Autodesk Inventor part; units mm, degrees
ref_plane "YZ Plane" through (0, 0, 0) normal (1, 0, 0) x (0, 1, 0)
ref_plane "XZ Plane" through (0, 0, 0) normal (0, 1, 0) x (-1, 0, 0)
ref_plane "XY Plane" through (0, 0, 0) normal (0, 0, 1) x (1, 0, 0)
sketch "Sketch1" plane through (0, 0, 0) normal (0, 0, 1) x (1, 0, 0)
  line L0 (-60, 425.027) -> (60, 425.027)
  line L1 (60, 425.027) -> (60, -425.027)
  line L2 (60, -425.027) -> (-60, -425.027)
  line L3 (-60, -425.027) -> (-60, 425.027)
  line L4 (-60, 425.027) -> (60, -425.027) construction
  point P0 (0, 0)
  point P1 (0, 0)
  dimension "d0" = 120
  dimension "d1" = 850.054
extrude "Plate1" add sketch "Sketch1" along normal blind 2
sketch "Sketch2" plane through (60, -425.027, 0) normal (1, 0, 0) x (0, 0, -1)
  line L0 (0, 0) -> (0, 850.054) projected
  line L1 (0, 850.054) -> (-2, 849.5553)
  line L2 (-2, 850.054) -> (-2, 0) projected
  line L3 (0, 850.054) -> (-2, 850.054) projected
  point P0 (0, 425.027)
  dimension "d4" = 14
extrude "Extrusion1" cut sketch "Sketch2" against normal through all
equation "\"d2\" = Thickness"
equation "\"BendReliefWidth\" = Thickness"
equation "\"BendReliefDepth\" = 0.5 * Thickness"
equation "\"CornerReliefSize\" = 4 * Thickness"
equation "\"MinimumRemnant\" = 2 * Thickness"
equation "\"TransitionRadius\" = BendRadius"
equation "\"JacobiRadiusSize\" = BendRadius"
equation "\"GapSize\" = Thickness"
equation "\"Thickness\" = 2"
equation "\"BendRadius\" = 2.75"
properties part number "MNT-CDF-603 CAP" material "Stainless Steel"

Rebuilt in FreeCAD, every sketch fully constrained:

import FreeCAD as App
import Part
import Sketcher

V = App.Vector
Q = App.Units.Quantity


def add_polygon(sketch, points):
    """Adds a closed chain of lines whose ends are joined by coincident constraints."""
    first, n = sketch.GeometryCount, len(points)
    for a, b in zip(points, points[1:] + points[:1]):
        sketch.addGeometry(Part.LineSegment(App.Vector(*a, 0), App.Vector(*b, 0)), False)
    for i in range(n):
        sketch.addConstraint(Sketcher.Constraint("Coincident", first + i, 2, first + (i + 1) % n, 1))

doc = App.newDocument("Part")
params = doc.addObject("Spreadsheet::Sheet", "Params")
for row, (alias, value) in enumerate([
    ("sketch1_width", "120 mm"),
    ("pad1_length", "2 mm"),
    ("sketch2_height", "2 mm"),
], start=1):
    params.set(f"A{row}", alias)
    params.set(f"B{row}", "=" + value)
    params.setAlias(f"B{row}", alias)

body = doc.addObject("PartDesign::Body", "Body")

# Sketch on XY plane
sketch1 = body.newObject("Sketcher::SketchObject", "Sketch")
sketch1.AttachmentSupport = (doc.getObject("XY_Plane"), [""])
sketch1.MapMode = "FlatFace"
add_polygon(sketch1, [(60, 425.027), (-60, 425.027), (-60, -425.027), (60, -425.027)])  # lines 0-3
sketch1.addConstraint([
    Sketcher.Constraint("Horizontal", 0),
    Sketcher.Constraint("Vertical", 1),
    Sketcher.Constraint("Horizontal", 2),
    Sketcher.Constraint("Vertical", 3),
    Sketcher.Constraint("Symmetric", 0, 2, 2, 2, -1, 1),
    Sketcher.Constraint("DistanceX", 0, 2, 0, 1, 120.0),
    Sketcher.Constraint("DistanceY", 1, 2, 1, 1, 850.054),
])
sketch1.setExpression("Constraints[9]", "Params.sketch1_width")
pad1 = body.newObject("PartDesign::Pad", "Pad")
pad1.Profile = sketch1
pad1.setExpression("Length", "Params.pad1_length")

# Sketch on YZ plane
sketch2 = body.newObject("Sketcher::SketchObject", "Sketch001")
sketch2.AttachmentSupport = (doc.getObject("YZ_Plane"), [""])
sketch2.MapMode = "FlatFace"
sketch2.AttachmentOffset = App.Placement(V(0, 0, 60), App.Rotation())
add_polygon(sketch2, [(424.5283, 2), (425.027, 0), (425.027, 2)])  # lines 0-2
sketch2.addConstraint([
    Sketcher.Constraint("Vertical", 1),
    Sketcher.Constraint("Horizontal", 2),
    Sketcher.Constraint("PointOnObject", 0, 2, -1),
    Sketcher.Constraint("DistanceY", 1, 1, 1, 2, 2.0),
    Sketcher.Constraint("Angle", 0, Q("-75.9988 deg")),
    Sketcher.Constraint("DistanceX", -1, 1, 0, 2, 425.027),
])
sketch2.setExpression("Constraints[6]", "Params.sketch2_height")
pocket1 = body.newObject("PartDesign::Pocket", "Pocket")
pocket1.Profile = sketch2
pocket1.Type = "ThroughAll"

doc.recompute()
